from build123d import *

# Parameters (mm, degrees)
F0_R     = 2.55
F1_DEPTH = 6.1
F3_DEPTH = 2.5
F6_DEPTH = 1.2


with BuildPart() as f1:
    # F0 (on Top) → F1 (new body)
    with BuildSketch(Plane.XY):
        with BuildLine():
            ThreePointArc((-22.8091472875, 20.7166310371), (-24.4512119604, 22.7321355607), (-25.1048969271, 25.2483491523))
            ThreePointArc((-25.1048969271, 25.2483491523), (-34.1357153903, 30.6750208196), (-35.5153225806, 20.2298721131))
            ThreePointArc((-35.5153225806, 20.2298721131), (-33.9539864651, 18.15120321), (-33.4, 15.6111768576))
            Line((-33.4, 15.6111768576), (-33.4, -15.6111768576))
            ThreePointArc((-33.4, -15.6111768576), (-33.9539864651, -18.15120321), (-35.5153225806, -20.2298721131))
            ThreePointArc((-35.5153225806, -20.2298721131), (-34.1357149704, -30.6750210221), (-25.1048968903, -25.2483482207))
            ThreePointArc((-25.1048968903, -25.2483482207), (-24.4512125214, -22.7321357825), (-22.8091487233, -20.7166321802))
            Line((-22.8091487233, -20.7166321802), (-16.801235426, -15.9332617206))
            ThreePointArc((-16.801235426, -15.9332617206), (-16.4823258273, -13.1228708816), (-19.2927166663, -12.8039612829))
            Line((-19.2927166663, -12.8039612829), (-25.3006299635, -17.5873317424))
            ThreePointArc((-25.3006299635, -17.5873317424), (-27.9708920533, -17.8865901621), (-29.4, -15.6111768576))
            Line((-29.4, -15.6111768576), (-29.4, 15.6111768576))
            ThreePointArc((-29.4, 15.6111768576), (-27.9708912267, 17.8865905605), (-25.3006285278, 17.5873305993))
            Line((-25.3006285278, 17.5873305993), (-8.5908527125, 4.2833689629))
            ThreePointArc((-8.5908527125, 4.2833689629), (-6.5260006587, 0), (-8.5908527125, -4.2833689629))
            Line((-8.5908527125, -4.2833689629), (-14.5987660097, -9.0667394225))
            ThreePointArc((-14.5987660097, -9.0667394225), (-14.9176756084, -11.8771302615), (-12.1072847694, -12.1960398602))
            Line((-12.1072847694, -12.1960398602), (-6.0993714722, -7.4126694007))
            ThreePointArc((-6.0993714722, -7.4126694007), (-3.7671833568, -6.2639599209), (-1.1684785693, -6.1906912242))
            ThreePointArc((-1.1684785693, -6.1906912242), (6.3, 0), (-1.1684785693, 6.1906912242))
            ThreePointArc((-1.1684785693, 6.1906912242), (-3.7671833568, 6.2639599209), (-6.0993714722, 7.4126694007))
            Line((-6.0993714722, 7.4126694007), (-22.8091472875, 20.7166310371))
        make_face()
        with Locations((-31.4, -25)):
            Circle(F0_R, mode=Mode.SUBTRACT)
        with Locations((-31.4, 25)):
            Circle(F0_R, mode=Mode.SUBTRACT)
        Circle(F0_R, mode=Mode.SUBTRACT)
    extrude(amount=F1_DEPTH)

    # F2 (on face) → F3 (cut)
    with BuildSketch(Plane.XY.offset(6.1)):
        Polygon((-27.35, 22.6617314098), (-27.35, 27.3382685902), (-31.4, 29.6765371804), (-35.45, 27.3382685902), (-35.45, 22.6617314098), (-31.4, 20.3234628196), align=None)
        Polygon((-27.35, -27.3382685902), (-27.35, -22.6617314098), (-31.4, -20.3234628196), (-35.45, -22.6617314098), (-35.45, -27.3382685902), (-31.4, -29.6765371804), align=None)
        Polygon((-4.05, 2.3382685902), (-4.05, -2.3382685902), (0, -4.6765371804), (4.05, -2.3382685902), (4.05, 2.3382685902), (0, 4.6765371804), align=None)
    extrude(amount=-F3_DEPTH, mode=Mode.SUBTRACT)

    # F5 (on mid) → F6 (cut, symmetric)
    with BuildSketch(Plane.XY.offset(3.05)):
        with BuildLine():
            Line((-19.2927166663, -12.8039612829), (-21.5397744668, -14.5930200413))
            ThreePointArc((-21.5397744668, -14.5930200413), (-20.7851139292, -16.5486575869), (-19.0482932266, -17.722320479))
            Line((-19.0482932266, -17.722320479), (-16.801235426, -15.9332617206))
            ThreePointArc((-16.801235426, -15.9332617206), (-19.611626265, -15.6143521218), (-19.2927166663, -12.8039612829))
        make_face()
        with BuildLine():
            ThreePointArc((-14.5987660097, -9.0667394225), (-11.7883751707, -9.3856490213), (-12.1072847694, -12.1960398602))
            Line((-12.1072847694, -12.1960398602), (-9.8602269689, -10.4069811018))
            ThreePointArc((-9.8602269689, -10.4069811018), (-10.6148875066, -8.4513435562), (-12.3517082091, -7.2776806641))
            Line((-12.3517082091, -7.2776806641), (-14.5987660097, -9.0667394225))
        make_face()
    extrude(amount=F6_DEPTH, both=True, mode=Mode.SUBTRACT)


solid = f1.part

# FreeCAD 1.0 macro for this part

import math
import FreeCAD as App
import Part
import Sketcher

V = App.Vector
Q = App.Units.Quantity


def add_polygon(sketch, points):
    """Adds a closed chain of lines whose ends are joined by coincident constraints."""
    first, n = sketch.GeometryCount, len(points)
    for a, b in zip(points, points[1:] + points[:1]):
        sketch.addGeometry(Part.LineSegment(App.Vector(*a, 0), App.Vector(*b, 0)), False)
    for i in range(n):
        sketch.addConstraint(Sketcher.Constraint("Coincident", first + i, 2, first + (i + 1) % n, 1))

doc = App.newDocument("Part")
params = doc.addObject("Spreadsheet::Sheet", "Params")
for row, (alias, value) in enumerate([
    ("sketch1_radius", "2 mm"),
    ("sketch1_diameter", "5.1 mm"),
    ("sketch1_radius2", "6.1 mm"),
    ("sketch1_radius3", "6.3 mm"),
    ("pad1_length", "6.1 mm"),
    ("pocket1_length", "2.5 mm"),
    ("sketch3_radius", "2 mm"),
    ("sketch3_radius2", "3.5 mm"),
    ("pocket2_length", "2.4 mm"),
], start=1):
    params.set(f"A{row}", alias)
    params.set(f"B{row}", "=" + value)
    params.setAlias(f"B{row}", alias)

body = doc.addObject("PartDesign::Body", "Body")

sketch1 = body.newObject("Sketcher::SketchObject", "Sketch")
sketch1.AttachmentSupport = (doc.getObject("XY_Plane"), [""])
sketch1.MapMode = "FlatFace"
sketch1.addGeometry([
    Part.ArcOfCircle(Part.Circle(V(-19.009638, 25.488814, 0), V(0, 0, 1), 6.1), math.radians(-177.740786), math.radians(-128.526044)),
    Part.ArcOfCircle(Part.Circle(V(-31.4, 25, 0), V(0, 0, 1), 6.3), math.radians(2.259214), math.radians(229.214742)),
    Part.ArcOfCircle(Part.Circle(V(-39.5, 15.611177, 0), V(0, 0, 1), 6.1), math.radians(0), math.radians(49.214742)),
    Part.LineSegment(V(-33.4, 15.611177, 0), V(-33.4, -15.611177, 0)),
    Part.ArcOfCircle(Part.Circle(V(-39.5, -15.611177, 0), V(0, 0, 1), 6.1), math.radians(-49.214742), math.radians(0)),
    Part.ArcOfCircle(Part.Circle(V(-31.4, -25, 0), V(0, 0, 1), 6.3), math.radians(130.785258), math.radians(357.740795)),
    Part.ArcOfCircle(Part.Circle(V(-19.009642, -25.488812, 0), V(0, 0, 1), 6.099996), math.radians(128.526044), math.radians(177.740795)),
    Part.LineSegment(V(-22.809149, -20.716632, 0), V(-16.801235, -15.933262, 0)),
    Part.ArcOfCircle(Part.Circle(V(-18.046976, -14.368612, 0), V(0, 0, 1), 2), math.radians(-51.473956), math.radians(128.526044)),
    Part.LineSegment(V(-19.292717, -12.803961, 0), V(-25.30063, -17.587332, 0)),
    Part.ArcOfCircle(Part.Circle(V(-26.873999, -15.611177, 0), V(0, 0, 1), 2.526001), math.radians(180), math.radians(308.526002)),
    Part.LineSegment(V(-29.4, -15.611177, 0), V(-29.4, 15.611177, 0)),
    Part.ArcOfCircle(Part.Circle(V(-26.873999, 15.611177, 0), V(0, 0, 1), 2.526001), math.radians(51.473956), math.radians(180)),
    Part.LineSegment(V(-25.300629, 17.587331, 0), V(-8.590853, 4.283369, 0)),
    Part.ArcOfCircle(Part.Circle(V(-12.001178, 0, 0), V(0, 0, 1), 5.475178), math.radians(-51.473956), math.radians(51.473956)),
    Part.LineSegment(V(-8.590853, -4.283369, 0), V(-14.598766, -9.066739, 0)),
    Part.ArcOfCircle(Part.Circle(V(-13.353025, -10.63139, 0), V(0, 0, 1), 2), math.radians(128.526044), math.radians(308.526044)),
    Part.LineSegment(V(-12.107285, -12.19604, 0), V(-6.099371, -7.412669, 0)),
    Part.ArcOfCircle(Part.Circle(V(-2.299863, -12.184853, 0), V(0, 0, 1), 6.1), math.radians(79.311302), math.radians(128.526044)),
    Part.ArcOfCircle(Part.Circle(V(0, 0, 0), V(0, 0, 1), 6.3), math.radians(-100.688698), math.radians(100.688698)),
    Part.ArcOfCircle(Part.Circle(V(-2.299863, 12.184853, 0), V(0, 0, 1), 6.1), math.radians(-128.526044), math.radians(-79.311302)),
    Part.LineSegment(V(-6.099371, 7.412669, 0), V(-22.809147, 20.716631, 0)),
    Part.Circle(V(-31.4, -25, 0), V(0, 0, 1), 2.55),
    Part.Circle(V(-31.4, 25, 0), V(0, 0, 1), 2.55),
    Part.Circle(V(0, 0, 0), V(0, 0, 1), 2.55),
], False)
sketch1.addConstraint([
    Sketcher.Constraint("Tangent", 0, 1, 1, 1),
    Sketcher.Constraint("Tangent", 1, 2, 2, 2),
    Sketcher.Constraint("Tangent", 2, 1, 3, 1),
    Sketcher.Constraint("Tangent", 3, 2, 4, 2),
    Sketcher.Constraint("Tangent", 4, 1, 5, 1),
    Sketcher.Constraint("Tangent", 5, 2, 6, 2),
    Sketcher.Constraint("Tangent", 6, 1, 7, 1),
    Sketcher.Constraint("Tangent", 7, 2, 8, 1),
    Sketcher.Constraint("Tangent", 8, 2, 9, 1),
    Sketcher.Constraint("Tangent", 9, 2, 10, 2),
    Sketcher.Constraint("Tangent", 10, 1, 11, 1),
    Sketcher.Constraint("Tangent", 11, 2, 12, 2),
    Sketcher.Constraint("Tangent", 12, 1, 13, 1),
    Sketcher.Constraint("Tangent", 13, 2, 14, 2),
    Sketcher.Constraint("Tangent", 14, 1, 15, 1),
    Sketcher.Constraint("Tangent", 15, 2, 16, 1),
    Sketcher.Constraint("Tangent", 16, 2, 17, 1),
    Sketcher.Constraint("Tangent", 17, 2, 18, 2),
    Sketcher.Constraint("Tangent", 18, 1, 19, 1),
    Sketcher.Constraint("Tangent", 19, 2, 20, 2),
    Sketcher.Constraint("Tangent", 20, 1, 21, 1),
    Sketcher.Constraint("Tangent", 21, 2, 0, 2),
    Sketcher.Constraint("Vertical", 3),
    Sketcher.Constraint("Vertical", 11),
    Sketcher.Constraint("Coincident", 19, 3, -1, 1),
    Sketcher.Constraint("Coincident", 24, 3, -1, 1),
    Sketcher.Constraint("Coincident", 22, 3, 5, 3),
    Sketcher.Constraint("Coincident", 23, 3, 1, 3),
    Sketcher.Constraint("Equal", 0, 2),
    Sketcher.Constraint("Equal", 2, 4),
    Sketcher.Constraint("Equal", 1, 5),
    Sketcher.Constraint("Equal", 10, 12),
    Sketcher.Constraint("Equal", 8, 16),
    Sketcher.Constraint("Equal", 4, 18),
    Sketcher.Constraint("Equal", 5, 19),
    Sketcher.Constraint("Equal", 18, 20),
    Sketcher.Constraint("Equal", 22, 23),
    Sketcher.Constraint("Equal", 23, 24),
    Sketcher.Constraint("Symmetric", 1, 3, 5, 3, -1),
    Sketcher.Constraint("Symmetric", 0, 3, 6, 3, -1),
    Sketcher.Constraint("Symmetric", 9, 2, 12, 1, -1),
    Sketcher.Constraint("Symmetric", 13, 2, 14, 1, -1),
    Sketcher.Constraint("Symmetric", 17, 2, 20, 1, -1),
    Sketcher.Constraint("Parallel", 7, 9),
    Sketcher.Constraint("Horizontal", 4, 3, 10, 3),
    Sketcher.Constraint("Equal", 7, 9),
    Sketcher.Constraint("Equal", 9, 15),
    Sketcher.Constraint("Equal", 15, 17),
    Sketcher.Constraint("Radius", 8, 2.0),
    Sketcher.Constraint("Diameter", 22, 5.1),
    Sketcher.Constraint("Radius", 0, 6.1),
    Sketcher.Constraint("Radius", 1, 6.3),
    Sketcher.Constraint("DistanceY", -1, 1, 1, 3, 25.0),
    Sketcher.Constraint("Radius", 10, 2.526001),
    Sketcher.Constraint("DistanceX", 2, 1, 1, 3, 2.0),
    Sketcher.Constraint("DistanceX", 3, 2, 10, 1, 4.0),
    Sketcher.Constraint("DistanceX", 1, 3, -1, 1, 31.4),
    Sketcher.Constraint("DistanceY", 6, 3, 8, 3, 11.120201),
])
sketch1.setExpression("Constraints[48]", "Params.sketch1_radius")
sketch1.setExpression("Constraints[49]", "Params.sketch1_diameter")
sketch1.setExpression("Constraints[50]", "Params.sketch1_radius2")
sketch1.setExpression("Constraints[51]", "Params.sketch1_radius3")
pad1 = body.newObject("PartDesign::Pad", "Pad")
pad1.Profile = sketch1
pad1.setExpression("Length", "Params.pad1_length")

sketch2 = body.newObject("Sketcher::SketchObject", "Sketch001")
sketch2.AttachmentSupport = (doc.getObject("XY_Plane"), [""])
sketch2.MapMode = "FlatFace"
sketch2.AttachmentOffset = App.Placement(V(0, 0, 6.1), App.Rotation())
add_polygon(sketch2, [(-27.35, 22.661731), (-27.35, 27.338269), (-31.4, 29.676537), (-35.45, 27.338269), (-35.45, 22.661731), (-31.4, 20.323463)])
add_polygon(sketch2, [(-27.35, -27.338269), (-27.35, -22.661731), (-31.4, -20.323463), (-35.45, -22.661731), (-35.45, -27.338269), (-31.4, -29.676537)])
add_polygon(sketch2, [(-4.05, 2.338269), (-4.05, -2.338269), (0, -4.676537), (4.05, -2.338269), (4.05, 2.338269), (0, 4.676537)])
sketch2.addConstraint([
    Sketcher.Constraint("Vertical", 0),
    Sketcher.Constraint("Vertical", 3),
    Sketcher.Constraint("Vertical", 6),
    Sketcher.Constraint("Vertical", 9),
    Sketcher.Constraint("Vertical", 12),
    Sketcher.Constraint("Vertical", 15),
    Sketcher.Constraint("Symmetric", 12, 2, 15, 2, -1, 1),
    Sketcher.Constraint("Symmetric", 13, 2, 16, 2, -1, 1),
    Sketcher.Constraint("Symmetric", 5, 2, 6, 2, -1),
    Sketcher.Constraint("Symmetric", 4, 2, 7, 2, -1),
    Sketcher.Constraint("Symmetric", 3, 2, 8, 2, -1),
    Sketcher.Constraint("Symmetric", 1, 2, 10, 2, -1),
    Sketcher.Constraint("PointOnObject", 13, 2, -2),
    Sketcher.Constraint("Parallel", 1, 4),
    Sketcher.Constraint("Parallel", 2, 5),
    Sketcher.Constraint("Parallel", 4, 7),
    Sketcher.Constraint("Parallel", 7, 10),
    Sketcher.Constraint("Parallel", 8, 11),
    Sketcher.Constraint("Parallel", 10, 13),
    Sketcher.Constraint("Parallel", 11, 14),
    Sketcher.Constraint("Parallel", 14, 17),
    Sketcher.Constraint("Horizontal", 0, 2, 2, 2),
    Sketcher.Constraint("Horizontal", 3, 2, 5, 2),
    Sketcher.Constraint("Equal", 9, 12),
    Sketcher.Constraint("Equal", 11, 13),
    Sketcher.Constraint("Angle", 1, Q("150 deg")),
    Sketcher.Constraint("DistanceY", 6, 2, 0, 2, 50.0),
    Sketcher.Constraint("DistanceX", 1, 2, -1, 1, 31.4),
    Sketcher.Constraint("DistanceX", 2, 2, 0, 2, 8.1),
    Sketcher.Constraint("DistanceY", 0, 1, 0, 2, 4.676537),
])
pocket1 = body.newObject("PartDesign::Pocket", "Pocket")
pocket1.Profile = sketch2
pocket1.setExpression("Length", "Params.pocket1_length")

sketch3 = body.newObject("Sketcher::SketchObject", "Sketch002")
sketch3.AttachmentSupport = (doc.getObject("XY_Plane"), [""])
sketch3.MapMode = "FlatFace"
sketch3.AttachmentOffset = App.Placement(V(0, 0, 3.05), App.Rotation())
sketch3.addGeometry([
    Part.LineSegment(V(-19.292717, -12.803961, 0), V(-21.539774, -14.59302, 0)),
    Part.ArcOfCircle(Part.Circle(V(-18.046976, -14.368612, 0), V(0, 0, 1), 3.5), math.radians(-176.323861), math.radians(-106.624051)),
    Part.LineSegment(V(-19.048293, -17.72232, 0), V(-16.801235, -15.933262, 0)),
    Part.ArcOfCircle(Part.Circle(V(-18.046976, -14.368612, 0), V(0, 0, 1), 2), math.radians(128.526044), math.radians(308.526044)),
    Part.ArcOfCircle(Part.Circle(V(-13.353025, -10.63139, 0), V(0, 0, 1), 2), math.radians(-51.473956), math.radians(128.526044)),
    Part.LineSegment(V(-12.107285, -12.19604, 0), V(-9.860227, -10.406981, 0)),
    Part.ArcOfCircle(Part.Circle(V(-13.353025, -10.63139, 0), V(0, 0, 1), 3.5), math.radians(3.676139), math.radians(73.375949)),
    Part.LineSegment(V(-12.351708, -7.277681, 0), V(-14.598766, -9.066739, 0)),
], False)
sketch3.addConstraint([
    Sketcher.Constraint("Coincident", 0, 2, 1, 1),
    Sketcher.Constraint("Coincident", 1, 2, 2, 1),
    Sketcher.Constraint("Tangent", 2, 2, 3, 2),
    Sketcher.Constraint("Tangent", 3, 1, 0, 1),
    Sketcher.Constraint("Tangent", 4, 1, 5, 1),
    Sketcher.Constraint("Coincident", 5, 2, 6, 1),
    Sketcher.Constraint("Coincident", 6, 2, 7, 1),
    Sketcher.Constraint("Tangent", 7, 2, 4, 2),
    Sketcher.Constraint("Coincident", 3, 3, 1, 3),
    Sketcher.Constraint("Coincident", 6, 3, 4, 3),
    Sketcher.Constraint("Equal", 3, 4),
    Sketcher.Constraint("Equal", 1, 6),
    Sketcher.Constraint("Parallel", 0, 2),
    Sketcher.Constraint("Parallel", 2, 5),
    Sketcher.Constraint("Parallel", 5, 7),
    Sketcher.Constraint("Radius", 3, 2.0),
    Sketcher.Constraint("Radius", 1, 3.5),
    Sketcher.Constraint("DistanceX", 0, 2, 1, 3, 3.492798),
    Sketcher.Constraint("DistanceY", 1, 3, -1, 1, 14.368612),
    Sketcher.Constraint("DistanceY", 4, 3, -1, 1, 10.63139),
    Sketcher.Constraint("DistanceX", 6, 2, -1, 1, 12.351708),
    Sketcher.Constraint("DistanceX", 1, 3, 4, 3, 4.693951),
])
sketch3.setExpression("Constraints[15]", "Params.sketch3_radius")
sketch3.setExpression("Constraints[16]", "Params.sketch3_radius2")
pocket2 = body.newObject("PartDesign::Pocket", "Pocket001")
pocket2.Profile = sketch3
pocket2.setExpression("Length", "Params.pocket2_length")
pocket2.Midplane = True

doc.recompute()
